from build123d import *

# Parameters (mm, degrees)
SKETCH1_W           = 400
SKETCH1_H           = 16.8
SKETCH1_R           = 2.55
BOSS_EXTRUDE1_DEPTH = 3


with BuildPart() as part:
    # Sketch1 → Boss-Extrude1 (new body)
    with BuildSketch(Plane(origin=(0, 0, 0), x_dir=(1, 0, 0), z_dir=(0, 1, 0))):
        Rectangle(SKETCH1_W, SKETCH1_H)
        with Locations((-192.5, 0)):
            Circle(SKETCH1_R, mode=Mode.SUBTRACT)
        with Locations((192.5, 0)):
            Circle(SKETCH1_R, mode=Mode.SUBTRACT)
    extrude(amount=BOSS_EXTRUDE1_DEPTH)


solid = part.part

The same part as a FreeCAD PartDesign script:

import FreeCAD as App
import Part
import Sketcher

doc = App.newDocument("Part")
body = doc.addObject("PartDesign::Body", "Body")

# Sketch on XZ plane
sketch1 = body.newObject("Sketcher::SketchObject", "Sketch")
sketch1.AttachmentSupport = (doc.getObject("XZ_Plane"), [""])
sketch1.MapMode = "FlatFace"
sketch1.addGeometry([
    Part.LineSegment(App.Vector(-200, -8.4, 0), App.Vector(-200, 8.4, 0)),  # 0
    Part.LineSegment(App.Vector(-200, 8.4, 0), App.Vector(200, 8.4, 0)),  # 1
    Part.LineSegment(App.Vector(200, 8.4, 0), App.Vector(200, -8.4, 0)),  # 2
    Part.LineSegment(App.Vector(200, -8.4, 0), App.Vector(-200, -8.4, 0)),  # 3
    Part.Circle(App.Vector(-192.5, 0, 0), App.Vector(0, 0, 1), 2.55),  # 4
    Part.Circle(App.Vector(192.5, 0, 0), App.Vector(0, 0, 1), 2.55),  # 5
], False)
sketch1.addConstraint([
    Sketcher.Constraint("Coincident", 0, 2, 1, 1),
    Sketcher.Constraint("Coincident", 1, 2, 2, 1),
    Sketcher.Constraint("Coincident", 2, 2, 3, 1),
    Sketcher.Constraint("Coincident", 3, 2, 0, 1),
    Sketcher.Constraint("Vertical", 0),
    Sketcher.Constraint("Horizontal", 1),
    Sketcher.Constraint("Vertical", 2),
    Sketcher.Constraint("Horizontal", 3),
    Sketcher.Constraint("Equal", 4, 5),
    Sketcher.Constraint("Symmetric", 4, 3, 5, 3, -1, 1),
    Sketcher.Constraint("Symmetric", 0, 2, 2, 2, -1, 1),
    Sketcher.Constraint("PointOnObject", 4, 3, -1),
    Sketcher.Constraint("Diameter", 4, 5.1),
    Sketcher.Constraint("DistanceX", 1, 1, 1, 2, 400.0),
    Sketcher.Constraint("DistanceY", 0, 1, 0, 2, 16.8),
    Sketcher.Constraint("DistanceX", 4, 3, 5, 3, 385.0),
])
pad1 = body.newObject("PartDesign::Pad", "Pad")
pad1.Profile = sketch1
pad1.Length = 3
pad1.Reversed = True

doc.recompute()
